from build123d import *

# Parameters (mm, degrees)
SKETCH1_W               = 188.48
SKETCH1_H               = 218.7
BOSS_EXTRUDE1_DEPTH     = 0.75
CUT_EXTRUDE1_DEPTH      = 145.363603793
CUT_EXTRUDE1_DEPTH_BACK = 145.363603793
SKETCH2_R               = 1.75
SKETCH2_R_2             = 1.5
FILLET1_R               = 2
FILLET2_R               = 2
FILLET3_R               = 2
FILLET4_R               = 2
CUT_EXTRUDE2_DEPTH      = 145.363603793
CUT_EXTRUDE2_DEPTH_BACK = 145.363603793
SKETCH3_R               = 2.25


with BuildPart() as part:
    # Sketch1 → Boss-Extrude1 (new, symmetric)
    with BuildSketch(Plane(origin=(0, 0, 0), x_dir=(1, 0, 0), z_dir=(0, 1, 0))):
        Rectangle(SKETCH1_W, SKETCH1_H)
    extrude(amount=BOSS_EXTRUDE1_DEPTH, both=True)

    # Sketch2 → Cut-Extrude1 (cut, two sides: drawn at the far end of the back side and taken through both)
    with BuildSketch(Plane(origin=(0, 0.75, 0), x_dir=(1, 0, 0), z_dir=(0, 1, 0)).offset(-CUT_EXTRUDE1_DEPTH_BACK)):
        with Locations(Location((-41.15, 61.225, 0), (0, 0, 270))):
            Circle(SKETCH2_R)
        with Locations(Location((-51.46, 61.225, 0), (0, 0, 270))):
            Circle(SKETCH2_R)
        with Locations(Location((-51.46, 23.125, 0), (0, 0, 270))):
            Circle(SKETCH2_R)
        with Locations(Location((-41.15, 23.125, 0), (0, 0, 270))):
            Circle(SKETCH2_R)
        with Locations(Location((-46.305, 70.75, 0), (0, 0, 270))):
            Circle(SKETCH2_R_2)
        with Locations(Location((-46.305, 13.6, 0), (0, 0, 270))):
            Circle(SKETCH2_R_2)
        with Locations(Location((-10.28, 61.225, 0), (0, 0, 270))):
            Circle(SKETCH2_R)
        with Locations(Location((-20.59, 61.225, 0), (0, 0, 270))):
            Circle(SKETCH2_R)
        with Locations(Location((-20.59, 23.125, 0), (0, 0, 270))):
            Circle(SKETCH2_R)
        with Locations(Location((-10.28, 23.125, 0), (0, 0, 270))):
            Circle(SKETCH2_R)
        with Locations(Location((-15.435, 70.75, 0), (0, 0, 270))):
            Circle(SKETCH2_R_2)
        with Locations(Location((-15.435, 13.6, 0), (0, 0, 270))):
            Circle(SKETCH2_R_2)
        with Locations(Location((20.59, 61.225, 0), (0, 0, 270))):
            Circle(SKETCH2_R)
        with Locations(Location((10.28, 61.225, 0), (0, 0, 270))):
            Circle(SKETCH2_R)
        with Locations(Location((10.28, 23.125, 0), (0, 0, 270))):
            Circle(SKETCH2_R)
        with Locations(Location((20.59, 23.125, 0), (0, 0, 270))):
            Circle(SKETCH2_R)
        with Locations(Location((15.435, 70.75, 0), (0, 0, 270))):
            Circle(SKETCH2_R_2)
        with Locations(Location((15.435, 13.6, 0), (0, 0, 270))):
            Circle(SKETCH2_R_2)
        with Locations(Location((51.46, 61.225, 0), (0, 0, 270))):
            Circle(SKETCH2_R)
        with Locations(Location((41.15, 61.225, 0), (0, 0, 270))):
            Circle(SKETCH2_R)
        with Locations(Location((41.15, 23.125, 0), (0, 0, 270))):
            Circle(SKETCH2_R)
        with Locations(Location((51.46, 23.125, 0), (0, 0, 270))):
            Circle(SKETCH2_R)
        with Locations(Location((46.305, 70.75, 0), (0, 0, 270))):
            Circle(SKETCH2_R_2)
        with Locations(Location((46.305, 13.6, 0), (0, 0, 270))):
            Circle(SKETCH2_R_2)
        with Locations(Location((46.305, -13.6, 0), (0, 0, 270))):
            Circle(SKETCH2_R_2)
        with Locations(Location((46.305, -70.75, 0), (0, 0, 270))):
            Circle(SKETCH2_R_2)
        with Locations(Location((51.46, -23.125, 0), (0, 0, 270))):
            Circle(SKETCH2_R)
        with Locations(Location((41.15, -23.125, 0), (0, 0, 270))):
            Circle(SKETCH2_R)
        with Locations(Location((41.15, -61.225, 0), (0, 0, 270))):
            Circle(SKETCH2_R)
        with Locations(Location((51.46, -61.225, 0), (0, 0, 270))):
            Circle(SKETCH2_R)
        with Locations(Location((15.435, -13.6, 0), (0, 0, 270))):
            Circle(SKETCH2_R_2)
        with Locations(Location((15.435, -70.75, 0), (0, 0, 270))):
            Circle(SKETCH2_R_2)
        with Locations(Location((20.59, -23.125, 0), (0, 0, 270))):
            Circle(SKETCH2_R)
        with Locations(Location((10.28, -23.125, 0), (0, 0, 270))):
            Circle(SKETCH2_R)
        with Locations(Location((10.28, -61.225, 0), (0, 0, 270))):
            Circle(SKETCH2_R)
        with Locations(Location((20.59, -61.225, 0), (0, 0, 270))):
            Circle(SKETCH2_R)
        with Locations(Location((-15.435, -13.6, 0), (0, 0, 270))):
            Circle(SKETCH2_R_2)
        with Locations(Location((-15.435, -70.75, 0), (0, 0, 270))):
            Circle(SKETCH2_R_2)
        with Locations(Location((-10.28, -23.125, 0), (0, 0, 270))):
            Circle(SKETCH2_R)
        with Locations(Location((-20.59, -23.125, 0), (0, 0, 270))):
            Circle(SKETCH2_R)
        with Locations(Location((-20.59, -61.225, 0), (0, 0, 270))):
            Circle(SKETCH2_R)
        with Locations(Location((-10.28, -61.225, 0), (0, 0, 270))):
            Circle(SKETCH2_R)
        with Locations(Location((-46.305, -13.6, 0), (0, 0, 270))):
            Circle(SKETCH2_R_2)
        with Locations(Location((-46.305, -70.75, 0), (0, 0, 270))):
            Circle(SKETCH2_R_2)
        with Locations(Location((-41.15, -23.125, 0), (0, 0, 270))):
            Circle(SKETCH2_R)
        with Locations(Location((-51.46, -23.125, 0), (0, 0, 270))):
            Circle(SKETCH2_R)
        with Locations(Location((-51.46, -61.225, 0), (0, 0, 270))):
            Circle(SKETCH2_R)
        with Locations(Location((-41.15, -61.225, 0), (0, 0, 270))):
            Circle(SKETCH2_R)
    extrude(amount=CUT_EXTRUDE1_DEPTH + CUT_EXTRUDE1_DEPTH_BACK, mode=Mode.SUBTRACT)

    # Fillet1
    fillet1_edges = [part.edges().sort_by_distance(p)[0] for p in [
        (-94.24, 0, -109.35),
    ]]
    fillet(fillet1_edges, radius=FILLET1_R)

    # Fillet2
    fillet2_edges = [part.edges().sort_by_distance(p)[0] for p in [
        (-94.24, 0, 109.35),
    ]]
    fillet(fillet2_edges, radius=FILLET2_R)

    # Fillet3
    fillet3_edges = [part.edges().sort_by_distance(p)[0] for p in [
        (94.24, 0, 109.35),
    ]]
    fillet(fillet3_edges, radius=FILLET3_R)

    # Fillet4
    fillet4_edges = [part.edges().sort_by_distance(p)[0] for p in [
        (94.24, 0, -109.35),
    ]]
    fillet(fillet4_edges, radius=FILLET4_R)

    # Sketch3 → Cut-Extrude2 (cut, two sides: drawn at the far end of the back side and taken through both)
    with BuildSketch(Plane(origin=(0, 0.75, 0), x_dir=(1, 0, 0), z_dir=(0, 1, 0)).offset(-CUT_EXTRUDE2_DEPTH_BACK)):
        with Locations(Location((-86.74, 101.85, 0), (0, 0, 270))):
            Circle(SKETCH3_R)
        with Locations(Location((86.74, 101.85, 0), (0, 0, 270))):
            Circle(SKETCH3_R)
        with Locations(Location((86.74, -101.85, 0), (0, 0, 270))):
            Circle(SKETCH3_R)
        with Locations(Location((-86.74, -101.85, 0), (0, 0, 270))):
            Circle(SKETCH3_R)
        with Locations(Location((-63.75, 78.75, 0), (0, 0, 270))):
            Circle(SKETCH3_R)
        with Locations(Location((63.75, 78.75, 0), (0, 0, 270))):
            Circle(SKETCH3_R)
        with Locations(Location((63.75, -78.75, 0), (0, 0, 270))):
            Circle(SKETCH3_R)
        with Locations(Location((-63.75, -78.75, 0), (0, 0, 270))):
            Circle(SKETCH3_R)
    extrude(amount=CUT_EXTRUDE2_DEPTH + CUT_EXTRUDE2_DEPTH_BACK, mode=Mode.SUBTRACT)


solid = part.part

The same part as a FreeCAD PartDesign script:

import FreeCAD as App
import Part
import Sketcher

V = App.Vector


def edges_at(feature, points):
    """Names of the edges that pass closest to the given points."""
    edges = feature.Shape.Edges
    near = lambda p: min(range(len(edges)), key=lambda i: edges[i].distToShape(Part.Vertex(*p))[0])
    return sorted({f"Edge{near(p) + 1}" for p in points})

doc = App.newDocument("Part")
body = doc.addObject("PartDesign::Body", "Body")

sketch1 = doc.addObject("Sketcher::SketchObject", "Sketch")
body.addObject(sketch1)
sketch1.AttachmentSupport = (doc.XZ_Plane, [""])
sketch1.MapMode = "FlatFace"
sketch1.addGeometry([
    Part.LineSegment(V(-94, -109, 0), V(-94, 109, 0)),
    Part.LineSegment(V(-94, 109, 0), V(94, 109, 0)),
    Part.LineSegment(V(94, 109, 0), V(94, -109, 0)),
    Part.LineSegment(V(94, -109, 0), V(-94, -109, 0)),
], False)
sketch1.addConstraint([
    Sketcher.Constraint("Coincident", 0, 2, 1, 1),
    Sketcher.Constraint("Coincident", 1, 2, 2, 1),
    Sketcher.Constraint("Coincident", 2, 2, 3, 1),
    Sketcher.Constraint("Coincident", 3, 2, 0, 1),
    Sketcher.Constraint("Vertical", 0),
    Sketcher.Constraint("Horizontal", 1),
    Sketcher.Constraint("Vertical", 2),
    Sketcher.Constraint("Horizontal", 3),
    Sketcher.Constraint("Symmetric", 0, 2, 2, 2, -1, 1),
    Sketcher.Constraint("DistanceY", 0, 1, 0, 2, 218.7),
    Sketcher.Constraint("DistanceX", 1, 1, 1, 2, 188.48),
])
pad1 = doc.addObject("PartDesign::Pad", "Pad")
body.addObject(pad1)
pad1.Profile = sketch1
pad1.Length = 1.5
pad1.Midplane = True

sketch2 = doc.addObject("Sketcher::SketchObject", "Sketch001")
body.addObject(sketch2)
sketch2.AttachmentSupport = (doc.XZ_Plane, [""])
sketch2.MapMode = "FlatFace"
sketch2.AttachmentOffset = App.Placement(V(0, 0, -0.75), App.Rotation())
sketch2.addGeometry([
    Part.Circle(V(-41.1, -61.2, 0), V(0, 0, 1), 1.8),
    Part.Circle(V(-51.5, -61.2, 0), V(0, 0, 1), 1.8),
    Part.Circle(V(-51.5, -23.1, 0), V(0, 0, 1), 1.8),
    Part.Circle(V(-41.1, -23.1, 0), V(0, 0, 1), 1.8),
    Part.Circle(V(-46.3, -70.8, 0), V(0, 0, 1), 1.5),
    Part.Circle(V(-46.3, -13.6, 0), V(0, 0, 1), 1.5),
    Part.Circle(V(-10.3, -61.2, 0), V(0, 0, 1), 1.8),
    Part.Circle(V(-20.6, -61.2, 0), V(0, 0, 1), 1.8),
    Part.Circle(V(-20.6, -23.1, 0), V(0, 0, 1), 1.8),
    Part.Circle(V(-10.3, -23.1, 0), V(0, 0, 1), 1.8),
    Part.Circle(V(-15.4, -70.8, 0), V(0, 0, 1), 1.5),
    Part.Circle(V(-15.4, -13.6, 0), V(0, 0, 1), 1.5),
    Part.Circle(V(20.6, -61.2, 0), V(0, 0, 1), 1.8),
    Part.Circle(V(10.3, -61.2, 0), V(0, 0, 1), 1.8),
    Part.Circle(V(10.3, -23.1, 0), V(0, 0, 1), 1.8),
    Part.Circle(V(20.6, -23.1, 0), V(0, 0, 1), 1.8),
    Part.Circle(V(15.4, -70.8, 0), V(0, 0, 1), 1.5),
    Part.Circle(V(15.4, -13.6, 0), V(0, 0, 1), 1.5),
    Part.Circle(V(51.5, -61.2, 0), V(0, 0, 1), 1.8),
    Part.Circle(V(41.1, -61.2, 0), V(0, 0, 1), 1.8),
    Part.Circle(V(41.1, -23.1, 0), V(0, 0, 1), 1.8),
    Part.Circle(V(51.5, -23.1, 0), V(0, 0, 1), 1.8),
    Part.Circle(V(46.3, -70.8, 0), V(0, 0, 1), 1.5),
    Part.Circle(V(46.3, -13.6, 0), V(0, 0, 1), 1.5),
    Part.Circle(V(46.3, 13.6, 0), V(0, 0, 1), 1.5),
    Part.Circle(V(46.3, 70.8, 0), V(0, 0, 1), 1.5),
    Part.Circle(V(51.5, 23.1, 0), V(0, 0, 1), 1.8),
    Part.Circle(V(41.1, 23.1, 0), V(0, 0, 1), 1.8),
    Part.Circle(V(41.1, 61.2, 0), V(0, 0, 1), 1.8),
    Part.Circle(V(51.5, 61.2, 0), V(0, 0, 1), 1.8),
    Part.Circle(V(15.4, 13.6, 0), V(0, 0, 1), 1.5),
    Part.Circle(V(15.4, 70.8, 0), V(0, 0, 1), 1.5),
    Part.Circle(V(20.6, 23.1, 0), V(0, 0, 1), 1.8),
    Part.Circle(V(10.3, 23.1, 0), V(0, 0, 1), 1.8),
    Part.Circle(V(10.3, 61.2, 0), V(0, 0, 1), 1.8),
    Part.Circle(V(20.6, 61.2, 0), V(0, 0, 1), 1.8),
    Part.Circle(V(-15.4, 13.6, 0), V(0, 0, 1), 1.5),
    Part.Circle(V(-15.4, 70.8, 0), V(0, 0, 1), 1.5),
    Part.Circle(V(-10.3, 23.1, 0), V(0, 0, 1), 1.8),
    Part.Circle(V(-20.6, 23.1, 0), V(0, 0, 1), 1.8),
    Part.Circle(V(-20.6, 61.2, 0), V(0, 0, 1), 1.8),
    Part.Circle(V(-10.3, 61.2, 0), V(0, 0, 1), 1.8),
    Part.Circle(V(-46.3, 13.6, 0), V(0, 0, 1), 1.5),
    Part.Circle(V(-46.3, 70.8, 0), V(0, 0, 1), 1.5),
    Part.Circle(V(-41.1, 23.1, 0), V(0, 0, 1), 1.8),
    Part.Circle(V(-51.5, 23.1, 0), V(0, 0, 1), 1.8),
    Part.Circle(V(-51.5, 61.2, 0), V(0, 0, 1), 1.8),
    Part.Circle(V(-41.1, 61.2, 0), V(0, 0, 1), 1.8),
], False)
sketch2.addConstraint([
    Sketcher.Constraint("Equal", 0, 1),
    Sketcher.Constraint("Equal", 1, 2),
    Sketcher.Constraint("Equal", 2, 3),
    Sketcher.Constraint("Equal", 4, 5),
    Sketcher.Constraint("Equal", 3, 6),
    Sketcher.Constraint("Equal", 6, 7),
    Sketcher.Constraint("Equal", 7, 8),
    Sketcher.Constraint("Equal", 8, 9),
    Sketcher.Constraint("Equal", 5, 10),
    Sketcher.Constraint("Equal", 10, 11),
    Sketcher.Constraint("Equal", 9, 12),
    Sketcher.Constraint("Equal", 12, 13),
    Sketcher.Constraint("Equal", 13, 14),
    Sketcher.Constraint("Equal", 14, 15),
    Sketcher.Constraint("Equal", 11, 16),
    Sketcher.Constraint("Equal", 16, 17),
    Sketcher.Constraint("Equal", 15, 18),
    Sketcher.Constraint("Equal", 18, 19),
    Sketcher.Constraint("Equal", 19, 20),
    Sketcher.Constraint("Equal", 20, 21),
    Sketcher.Constraint("Equal", 17, 22),
    Sketcher.Constraint("Equal", 22, 23),
    Sketcher.Constraint("Equal", 23, 24),
    Sketcher.Constraint("Equal", 24, 25),
    Sketcher.Constraint("Equal", 21, 26),
    Sketcher.Constraint("Equal", 26, 27),
    Sketcher.Constraint("Equal", 27, 28),
    Sketcher.Constraint("Equal", 28, 29),
    Sketcher.Constraint("Equal", 25, 30),
    Sketcher.Constraint("Equal", 30, 31),
    Sketcher.Constraint("Equal", 29, 32),
    Sketcher.Constraint("Equal", 32, 33),
    Sketcher.Constraint("Equal", 33, 34),
    Sketcher.Constraint("Equal", 34, 35),
    Sketcher.Constraint("Equal", 31, 36),
    Sketcher.Constraint("Equal", 36, 37),
    Sketcher.Constraint("Equal", 35, 38),
    Sketcher.Constraint("Equal", 38, 39),
    Sketcher.Constraint("Equal", 39, 40),
    Sketcher.Constraint("Equal", 40, 41),
    Sketcher.Constraint("Equal", 37, 42),
    Sketcher.Constraint("Equal", 42, 43),
    Sketcher.Constraint("Equal", 41, 44),
    Sketcher.Constraint("Equal", 44, 45),
    Sketcher.Constraint("Equal", 45, 46),
    Sketcher.Constraint("Equal", 46, 47),
    Sketcher.Constraint("Symmetric", 5, 3, 24, 3, -1, 1),
    Sketcher.Constraint("Symmetric", 4, 3, 25, 3, -1, 1),
    Sketcher.Constraint("Symmetric", 2, 3, 26, 3, -1, 1),
    Sketcher.Constraint("Symmetric", 3, 3, 27, 3, -1, 1),
    Sketcher.Constraint("Symmetric", 0, 3, 28, 3, -1, 1),
    Sketcher.Constraint("Symmetric", 1, 3, 29, 3, -1, 1),
    Sketcher.Constraint("Symmetric", 11, 3, 30, 3, -1, 1),
    Sketcher.Constraint("Symmetric", 10, 3, 31, 3, -1, 1),
    Sketcher.Constraint("Symmetric", 8, 3, 32, 3, -1, 1),
    Sketcher.Constraint("Symmetric", 9, 3, 33, 3, -1, 1),
    Sketcher.Constraint("Symmetric", 6, 3, 34, 3, -1, 1),
    Sketcher.Constraint("Symmetric", 7, 3, 35, 3, -1, 1),
    Sketcher.Constraint("Symmetric", 17, 3, 36, 3, -1, 1),
    Sketcher.Constraint("Symmetric", 16, 3, 37, 3, -1, 1),
    Sketcher.Constraint("Symmetric", 14, 3, 38, 3, -1, 1),
    Sketcher.Constraint("Symmetric", 15, 3, 39, 3, -1, 1),
    Sketcher.Constraint("Symmetric", 12, 3, 40, 3, -1, 1),
    Sketcher.Constraint("Symmetric", 13, 3, 41, 3, -1, 1),
    Sketcher.Constraint("Symmetric", 23, 3, 42, 3, -1, 1),
    Sketcher.Constraint("Symmetric", 22, 3, 43, 3, -1, 1),
    Sketcher.Constraint("Symmetric", 20, 3, 44, 3, -1, 1),
    Sketcher.Constraint("Symmetric", 21, 3, 45, 3, -1, 1),
    Sketcher.Constraint("Symmetric", 18, 3, 46, 3, -1, 1),
    Sketcher.Constraint("Symmetric", 19, 3, 47, 3, -1, 1),
    Sketcher.Constraint("Symmetric", 7, 3, 12, 3, -2),
    Sketcher.Constraint("Symmetric", 6, 3, 13, 3, -2),
    Sketcher.Constraint("Symmetric", 9, 3, 14, 3, -2),
    Sketcher.Constraint("Symmetric", 8, 3, 15, 3, -2),
    Sketcher.Constraint("Symmetric", 10, 3, 16, 3, -2),
    Sketcher.Constraint("Symmetric", 11, 3, 17, 3, -2),
    Sketcher.Constraint("Symmetric", 1, 3, 18, 3, -2),
    Sketcher.Constraint("Symmetric", 0, 3, 19, 3, -2),
    Sketcher.Constraint("Symmetric", 3, 3, 20, 3, -2),
    Sketcher.Constraint("Symmetric", 2, 3, 21, 3, -2),
    Sketcher.Constraint("Symmetric", 4, 3, 22, 3, -2),
    Sketcher.Constraint("Symmetric", 5, 3, 23, 3, -2),
    Sketcher.Constraint("Horizontal", 0, 3, 1, 3),
    Sketcher.Constraint("Horizontal", 2, 3, 3, 3),
    Sketcher.Constraint("Horizontal", 1, 3, 6, 3),
    Sketcher.Constraint("Horizontal", 6, 3, 7, 3),
    Sketcher.Constraint("Horizontal", 3, 3, 8, 3),
    Sketcher.Constraint("Horizontal", 8, 3, 9, 3),
    Sketcher.Constraint("Horizontal", 4, 3, 10, 3),
    Sketcher.Constraint("Horizontal", 5, 3, 11, 3),
    Sketcher.Constraint("Vertical", 1, 3, 2, 3),
    Sketcher.Constraint("Vertical", 0, 3, 3, 3),
    Sketcher.Constraint("Vertical", 4, 3, 5, 3),
    Sketcher.Constraint("Vertical", 7, 3, 8, 3),
    Sketcher.Constraint("Vertical", 6, 3, 9, 3),
    Sketcher.Constraint("Vertical", 10, 3, 11, 3),
    Sketcher.Constraint("Diameter", 4, 3.0),
    Sketcher.Constraint("Diameter", 0, 3.5),
    Sketcher.Constraint("DistanceY", 5, 3, -1, 1, 13.6),
    Sketcher.Constraint("DistanceY", 1, 3, 2, 3, 38.1),
    Sketcher.Constraint("DistanceX", 0, 3, -1, 1, 41.15),
    Sketcher.Constraint("DistanceX", 1, 3, -1, 1, 51.46),
    Sketcher.Constraint("DistanceY", 4, 3, -1, 1, 70.75),
    Sketcher.Constraint("DistanceX", 6, 3, -1, 1, 10.28),
    Sketcher.Constraint("DistanceX", 7, 3, -1, 1, 20.59),
    Sketcher.Constraint("DistanceX", 4, 3, 10, 3, 30.87),
    Sketcher.Constraint("DistanceX", 10, 3, 16, 3, 30.87),
    Sketcher.Constraint("DistanceY", 21, 3, 26, 3, 46.25),
])
pocket1 = doc.addObject("PartDesign::Pocket", "Pocket")
body.addObject(pocket1)
pocket1.Profile = sketch2
pocket1.Type = "ThroughAll"
pocket1.Midplane = True
doc.recompute()

fillet = doc.addObject("PartDesign::Fillet", "Fillet")
body.addObject(fillet)
fillet.Base = (pocket1, edges_at(pocket1, [(-94.24, 0, -109.35)]))
fillet.Radius = 2
doc.recompute()

fillet2 = doc.addObject("PartDesign::Fillet", "Fillet001")
body.addObject(fillet2)
fillet2.Base = (fillet, edges_at(fillet, [(-94.24, 0, 109.35)]))
fillet2.Radius = 2
doc.recompute()

fillet3 = doc.addObject("PartDesign::Fillet", "Fillet002")
body.addObject(fillet3)
fillet3.Base = (fillet2, edges_at(fillet2, [(94.24, 0, 109.35)]))
fillet3.Radius = 2
doc.recompute()

fillet4 = doc.addObject("PartDesign::Fillet", "Fillet003")
body.addObject(fillet4)
fillet4.Base = (fillet3, edges_at(fillet3, [(94.24, 0, -109.35)]))
fillet4.Radius = 2

sketch3 = doc.addObject("Sketcher::SketchObject", "Sketch002")
body.addObject(sketch3)
sketch3.AttachmentSupport = (doc.XZ_Plane, [""])
sketch3.MapMode = "FlatFace"
sketch3.AttachmentOffset = App.Placement(V(0, 0, -0.75), App.Rotation())
sketch3.addGeometry([
    Part.Circle(V(-86.7, -101.8, 0), V(0, 0, 1), 2.2),
    Part.Circle(V(86.7, -101.8, 0), V(0, 0, 1), 2.2),
    Part.Circle(V(86.7, 101.8, 0), V(0, 0, 1), 2.2),
    Part.Circle(V(-86.7, 101.8, 0), V(0, 0, 1), 2.2),
    Part.Circle(V(-63.8, -78.8, 0), V(0, 0, 1), 2.2),
    Part.Circle(V(63.8, -78.8, 0), V(0, 0, 1), 2.2),
    Part.Circle(V(63.8, 78.8, 0), V(0, 0, 1), 2.2),
    Part.Circle(V(-63.8, 78.8, 0), V(0, 0, 1), 2.2),
], False)
sketch3.addConstraint([
    Sketcher.Constraint("Equal", 0, 1),
    Sketcher.Constraint("Equal", 1, 2),
    Sketcher.Constraint("Equal", 2, 3),
    Sketcher.Constraint("Equal", 3, 4),
    Sketcher.Constraint("Equal", 4, 5),
    Sketcher.Constraint("Equal", 5, 6),
    Sketcher.Constraint("Equal", 6, 7),
    Sketcher.Constraint("Symmetric", 0, 3, 2, 3, -1, 1),
    Sketcher.Constraint("Symmetric", 1, 3, 3, 3, -1, 1),
    Sketcher.Constraint("Symmetric", 4, 3, 6, 3, -1, 1),
    Sketcher.Constraint("Symmetric", 5, 3, 7, 3, -1, 1),
    Sketcher.Constraint("Symmetric", 0, 3, 1, 3, -2),
    Sketcher.Constraint("Symmetric", 4, 3, 5, 3, -2),
    Sketcher.Constraint("Diameter", 0, 4.5),
    Sketcher.Constraint("DistanceY", 1, 3, 2, 3, 203.7),
    Sketcher.Constraint("DistanceY", 0, 3, 4, 3, 23.1),
    Sketcher.Constraint("DistanceX", 4, 3, 5, 3, 127.5),
    Sketcher.Constraint("DistanceX", 0, 3, -1, 1, 86.74),
])
pocket2 = doc.addObject("PartDesign::Pocket", "Pocket001")
body.addObject(pocket2)
pocket2.Profile = sketch3
pocket2.Type = "ThroughAll"
pocket2.Midplane = True

doc.recompute()
